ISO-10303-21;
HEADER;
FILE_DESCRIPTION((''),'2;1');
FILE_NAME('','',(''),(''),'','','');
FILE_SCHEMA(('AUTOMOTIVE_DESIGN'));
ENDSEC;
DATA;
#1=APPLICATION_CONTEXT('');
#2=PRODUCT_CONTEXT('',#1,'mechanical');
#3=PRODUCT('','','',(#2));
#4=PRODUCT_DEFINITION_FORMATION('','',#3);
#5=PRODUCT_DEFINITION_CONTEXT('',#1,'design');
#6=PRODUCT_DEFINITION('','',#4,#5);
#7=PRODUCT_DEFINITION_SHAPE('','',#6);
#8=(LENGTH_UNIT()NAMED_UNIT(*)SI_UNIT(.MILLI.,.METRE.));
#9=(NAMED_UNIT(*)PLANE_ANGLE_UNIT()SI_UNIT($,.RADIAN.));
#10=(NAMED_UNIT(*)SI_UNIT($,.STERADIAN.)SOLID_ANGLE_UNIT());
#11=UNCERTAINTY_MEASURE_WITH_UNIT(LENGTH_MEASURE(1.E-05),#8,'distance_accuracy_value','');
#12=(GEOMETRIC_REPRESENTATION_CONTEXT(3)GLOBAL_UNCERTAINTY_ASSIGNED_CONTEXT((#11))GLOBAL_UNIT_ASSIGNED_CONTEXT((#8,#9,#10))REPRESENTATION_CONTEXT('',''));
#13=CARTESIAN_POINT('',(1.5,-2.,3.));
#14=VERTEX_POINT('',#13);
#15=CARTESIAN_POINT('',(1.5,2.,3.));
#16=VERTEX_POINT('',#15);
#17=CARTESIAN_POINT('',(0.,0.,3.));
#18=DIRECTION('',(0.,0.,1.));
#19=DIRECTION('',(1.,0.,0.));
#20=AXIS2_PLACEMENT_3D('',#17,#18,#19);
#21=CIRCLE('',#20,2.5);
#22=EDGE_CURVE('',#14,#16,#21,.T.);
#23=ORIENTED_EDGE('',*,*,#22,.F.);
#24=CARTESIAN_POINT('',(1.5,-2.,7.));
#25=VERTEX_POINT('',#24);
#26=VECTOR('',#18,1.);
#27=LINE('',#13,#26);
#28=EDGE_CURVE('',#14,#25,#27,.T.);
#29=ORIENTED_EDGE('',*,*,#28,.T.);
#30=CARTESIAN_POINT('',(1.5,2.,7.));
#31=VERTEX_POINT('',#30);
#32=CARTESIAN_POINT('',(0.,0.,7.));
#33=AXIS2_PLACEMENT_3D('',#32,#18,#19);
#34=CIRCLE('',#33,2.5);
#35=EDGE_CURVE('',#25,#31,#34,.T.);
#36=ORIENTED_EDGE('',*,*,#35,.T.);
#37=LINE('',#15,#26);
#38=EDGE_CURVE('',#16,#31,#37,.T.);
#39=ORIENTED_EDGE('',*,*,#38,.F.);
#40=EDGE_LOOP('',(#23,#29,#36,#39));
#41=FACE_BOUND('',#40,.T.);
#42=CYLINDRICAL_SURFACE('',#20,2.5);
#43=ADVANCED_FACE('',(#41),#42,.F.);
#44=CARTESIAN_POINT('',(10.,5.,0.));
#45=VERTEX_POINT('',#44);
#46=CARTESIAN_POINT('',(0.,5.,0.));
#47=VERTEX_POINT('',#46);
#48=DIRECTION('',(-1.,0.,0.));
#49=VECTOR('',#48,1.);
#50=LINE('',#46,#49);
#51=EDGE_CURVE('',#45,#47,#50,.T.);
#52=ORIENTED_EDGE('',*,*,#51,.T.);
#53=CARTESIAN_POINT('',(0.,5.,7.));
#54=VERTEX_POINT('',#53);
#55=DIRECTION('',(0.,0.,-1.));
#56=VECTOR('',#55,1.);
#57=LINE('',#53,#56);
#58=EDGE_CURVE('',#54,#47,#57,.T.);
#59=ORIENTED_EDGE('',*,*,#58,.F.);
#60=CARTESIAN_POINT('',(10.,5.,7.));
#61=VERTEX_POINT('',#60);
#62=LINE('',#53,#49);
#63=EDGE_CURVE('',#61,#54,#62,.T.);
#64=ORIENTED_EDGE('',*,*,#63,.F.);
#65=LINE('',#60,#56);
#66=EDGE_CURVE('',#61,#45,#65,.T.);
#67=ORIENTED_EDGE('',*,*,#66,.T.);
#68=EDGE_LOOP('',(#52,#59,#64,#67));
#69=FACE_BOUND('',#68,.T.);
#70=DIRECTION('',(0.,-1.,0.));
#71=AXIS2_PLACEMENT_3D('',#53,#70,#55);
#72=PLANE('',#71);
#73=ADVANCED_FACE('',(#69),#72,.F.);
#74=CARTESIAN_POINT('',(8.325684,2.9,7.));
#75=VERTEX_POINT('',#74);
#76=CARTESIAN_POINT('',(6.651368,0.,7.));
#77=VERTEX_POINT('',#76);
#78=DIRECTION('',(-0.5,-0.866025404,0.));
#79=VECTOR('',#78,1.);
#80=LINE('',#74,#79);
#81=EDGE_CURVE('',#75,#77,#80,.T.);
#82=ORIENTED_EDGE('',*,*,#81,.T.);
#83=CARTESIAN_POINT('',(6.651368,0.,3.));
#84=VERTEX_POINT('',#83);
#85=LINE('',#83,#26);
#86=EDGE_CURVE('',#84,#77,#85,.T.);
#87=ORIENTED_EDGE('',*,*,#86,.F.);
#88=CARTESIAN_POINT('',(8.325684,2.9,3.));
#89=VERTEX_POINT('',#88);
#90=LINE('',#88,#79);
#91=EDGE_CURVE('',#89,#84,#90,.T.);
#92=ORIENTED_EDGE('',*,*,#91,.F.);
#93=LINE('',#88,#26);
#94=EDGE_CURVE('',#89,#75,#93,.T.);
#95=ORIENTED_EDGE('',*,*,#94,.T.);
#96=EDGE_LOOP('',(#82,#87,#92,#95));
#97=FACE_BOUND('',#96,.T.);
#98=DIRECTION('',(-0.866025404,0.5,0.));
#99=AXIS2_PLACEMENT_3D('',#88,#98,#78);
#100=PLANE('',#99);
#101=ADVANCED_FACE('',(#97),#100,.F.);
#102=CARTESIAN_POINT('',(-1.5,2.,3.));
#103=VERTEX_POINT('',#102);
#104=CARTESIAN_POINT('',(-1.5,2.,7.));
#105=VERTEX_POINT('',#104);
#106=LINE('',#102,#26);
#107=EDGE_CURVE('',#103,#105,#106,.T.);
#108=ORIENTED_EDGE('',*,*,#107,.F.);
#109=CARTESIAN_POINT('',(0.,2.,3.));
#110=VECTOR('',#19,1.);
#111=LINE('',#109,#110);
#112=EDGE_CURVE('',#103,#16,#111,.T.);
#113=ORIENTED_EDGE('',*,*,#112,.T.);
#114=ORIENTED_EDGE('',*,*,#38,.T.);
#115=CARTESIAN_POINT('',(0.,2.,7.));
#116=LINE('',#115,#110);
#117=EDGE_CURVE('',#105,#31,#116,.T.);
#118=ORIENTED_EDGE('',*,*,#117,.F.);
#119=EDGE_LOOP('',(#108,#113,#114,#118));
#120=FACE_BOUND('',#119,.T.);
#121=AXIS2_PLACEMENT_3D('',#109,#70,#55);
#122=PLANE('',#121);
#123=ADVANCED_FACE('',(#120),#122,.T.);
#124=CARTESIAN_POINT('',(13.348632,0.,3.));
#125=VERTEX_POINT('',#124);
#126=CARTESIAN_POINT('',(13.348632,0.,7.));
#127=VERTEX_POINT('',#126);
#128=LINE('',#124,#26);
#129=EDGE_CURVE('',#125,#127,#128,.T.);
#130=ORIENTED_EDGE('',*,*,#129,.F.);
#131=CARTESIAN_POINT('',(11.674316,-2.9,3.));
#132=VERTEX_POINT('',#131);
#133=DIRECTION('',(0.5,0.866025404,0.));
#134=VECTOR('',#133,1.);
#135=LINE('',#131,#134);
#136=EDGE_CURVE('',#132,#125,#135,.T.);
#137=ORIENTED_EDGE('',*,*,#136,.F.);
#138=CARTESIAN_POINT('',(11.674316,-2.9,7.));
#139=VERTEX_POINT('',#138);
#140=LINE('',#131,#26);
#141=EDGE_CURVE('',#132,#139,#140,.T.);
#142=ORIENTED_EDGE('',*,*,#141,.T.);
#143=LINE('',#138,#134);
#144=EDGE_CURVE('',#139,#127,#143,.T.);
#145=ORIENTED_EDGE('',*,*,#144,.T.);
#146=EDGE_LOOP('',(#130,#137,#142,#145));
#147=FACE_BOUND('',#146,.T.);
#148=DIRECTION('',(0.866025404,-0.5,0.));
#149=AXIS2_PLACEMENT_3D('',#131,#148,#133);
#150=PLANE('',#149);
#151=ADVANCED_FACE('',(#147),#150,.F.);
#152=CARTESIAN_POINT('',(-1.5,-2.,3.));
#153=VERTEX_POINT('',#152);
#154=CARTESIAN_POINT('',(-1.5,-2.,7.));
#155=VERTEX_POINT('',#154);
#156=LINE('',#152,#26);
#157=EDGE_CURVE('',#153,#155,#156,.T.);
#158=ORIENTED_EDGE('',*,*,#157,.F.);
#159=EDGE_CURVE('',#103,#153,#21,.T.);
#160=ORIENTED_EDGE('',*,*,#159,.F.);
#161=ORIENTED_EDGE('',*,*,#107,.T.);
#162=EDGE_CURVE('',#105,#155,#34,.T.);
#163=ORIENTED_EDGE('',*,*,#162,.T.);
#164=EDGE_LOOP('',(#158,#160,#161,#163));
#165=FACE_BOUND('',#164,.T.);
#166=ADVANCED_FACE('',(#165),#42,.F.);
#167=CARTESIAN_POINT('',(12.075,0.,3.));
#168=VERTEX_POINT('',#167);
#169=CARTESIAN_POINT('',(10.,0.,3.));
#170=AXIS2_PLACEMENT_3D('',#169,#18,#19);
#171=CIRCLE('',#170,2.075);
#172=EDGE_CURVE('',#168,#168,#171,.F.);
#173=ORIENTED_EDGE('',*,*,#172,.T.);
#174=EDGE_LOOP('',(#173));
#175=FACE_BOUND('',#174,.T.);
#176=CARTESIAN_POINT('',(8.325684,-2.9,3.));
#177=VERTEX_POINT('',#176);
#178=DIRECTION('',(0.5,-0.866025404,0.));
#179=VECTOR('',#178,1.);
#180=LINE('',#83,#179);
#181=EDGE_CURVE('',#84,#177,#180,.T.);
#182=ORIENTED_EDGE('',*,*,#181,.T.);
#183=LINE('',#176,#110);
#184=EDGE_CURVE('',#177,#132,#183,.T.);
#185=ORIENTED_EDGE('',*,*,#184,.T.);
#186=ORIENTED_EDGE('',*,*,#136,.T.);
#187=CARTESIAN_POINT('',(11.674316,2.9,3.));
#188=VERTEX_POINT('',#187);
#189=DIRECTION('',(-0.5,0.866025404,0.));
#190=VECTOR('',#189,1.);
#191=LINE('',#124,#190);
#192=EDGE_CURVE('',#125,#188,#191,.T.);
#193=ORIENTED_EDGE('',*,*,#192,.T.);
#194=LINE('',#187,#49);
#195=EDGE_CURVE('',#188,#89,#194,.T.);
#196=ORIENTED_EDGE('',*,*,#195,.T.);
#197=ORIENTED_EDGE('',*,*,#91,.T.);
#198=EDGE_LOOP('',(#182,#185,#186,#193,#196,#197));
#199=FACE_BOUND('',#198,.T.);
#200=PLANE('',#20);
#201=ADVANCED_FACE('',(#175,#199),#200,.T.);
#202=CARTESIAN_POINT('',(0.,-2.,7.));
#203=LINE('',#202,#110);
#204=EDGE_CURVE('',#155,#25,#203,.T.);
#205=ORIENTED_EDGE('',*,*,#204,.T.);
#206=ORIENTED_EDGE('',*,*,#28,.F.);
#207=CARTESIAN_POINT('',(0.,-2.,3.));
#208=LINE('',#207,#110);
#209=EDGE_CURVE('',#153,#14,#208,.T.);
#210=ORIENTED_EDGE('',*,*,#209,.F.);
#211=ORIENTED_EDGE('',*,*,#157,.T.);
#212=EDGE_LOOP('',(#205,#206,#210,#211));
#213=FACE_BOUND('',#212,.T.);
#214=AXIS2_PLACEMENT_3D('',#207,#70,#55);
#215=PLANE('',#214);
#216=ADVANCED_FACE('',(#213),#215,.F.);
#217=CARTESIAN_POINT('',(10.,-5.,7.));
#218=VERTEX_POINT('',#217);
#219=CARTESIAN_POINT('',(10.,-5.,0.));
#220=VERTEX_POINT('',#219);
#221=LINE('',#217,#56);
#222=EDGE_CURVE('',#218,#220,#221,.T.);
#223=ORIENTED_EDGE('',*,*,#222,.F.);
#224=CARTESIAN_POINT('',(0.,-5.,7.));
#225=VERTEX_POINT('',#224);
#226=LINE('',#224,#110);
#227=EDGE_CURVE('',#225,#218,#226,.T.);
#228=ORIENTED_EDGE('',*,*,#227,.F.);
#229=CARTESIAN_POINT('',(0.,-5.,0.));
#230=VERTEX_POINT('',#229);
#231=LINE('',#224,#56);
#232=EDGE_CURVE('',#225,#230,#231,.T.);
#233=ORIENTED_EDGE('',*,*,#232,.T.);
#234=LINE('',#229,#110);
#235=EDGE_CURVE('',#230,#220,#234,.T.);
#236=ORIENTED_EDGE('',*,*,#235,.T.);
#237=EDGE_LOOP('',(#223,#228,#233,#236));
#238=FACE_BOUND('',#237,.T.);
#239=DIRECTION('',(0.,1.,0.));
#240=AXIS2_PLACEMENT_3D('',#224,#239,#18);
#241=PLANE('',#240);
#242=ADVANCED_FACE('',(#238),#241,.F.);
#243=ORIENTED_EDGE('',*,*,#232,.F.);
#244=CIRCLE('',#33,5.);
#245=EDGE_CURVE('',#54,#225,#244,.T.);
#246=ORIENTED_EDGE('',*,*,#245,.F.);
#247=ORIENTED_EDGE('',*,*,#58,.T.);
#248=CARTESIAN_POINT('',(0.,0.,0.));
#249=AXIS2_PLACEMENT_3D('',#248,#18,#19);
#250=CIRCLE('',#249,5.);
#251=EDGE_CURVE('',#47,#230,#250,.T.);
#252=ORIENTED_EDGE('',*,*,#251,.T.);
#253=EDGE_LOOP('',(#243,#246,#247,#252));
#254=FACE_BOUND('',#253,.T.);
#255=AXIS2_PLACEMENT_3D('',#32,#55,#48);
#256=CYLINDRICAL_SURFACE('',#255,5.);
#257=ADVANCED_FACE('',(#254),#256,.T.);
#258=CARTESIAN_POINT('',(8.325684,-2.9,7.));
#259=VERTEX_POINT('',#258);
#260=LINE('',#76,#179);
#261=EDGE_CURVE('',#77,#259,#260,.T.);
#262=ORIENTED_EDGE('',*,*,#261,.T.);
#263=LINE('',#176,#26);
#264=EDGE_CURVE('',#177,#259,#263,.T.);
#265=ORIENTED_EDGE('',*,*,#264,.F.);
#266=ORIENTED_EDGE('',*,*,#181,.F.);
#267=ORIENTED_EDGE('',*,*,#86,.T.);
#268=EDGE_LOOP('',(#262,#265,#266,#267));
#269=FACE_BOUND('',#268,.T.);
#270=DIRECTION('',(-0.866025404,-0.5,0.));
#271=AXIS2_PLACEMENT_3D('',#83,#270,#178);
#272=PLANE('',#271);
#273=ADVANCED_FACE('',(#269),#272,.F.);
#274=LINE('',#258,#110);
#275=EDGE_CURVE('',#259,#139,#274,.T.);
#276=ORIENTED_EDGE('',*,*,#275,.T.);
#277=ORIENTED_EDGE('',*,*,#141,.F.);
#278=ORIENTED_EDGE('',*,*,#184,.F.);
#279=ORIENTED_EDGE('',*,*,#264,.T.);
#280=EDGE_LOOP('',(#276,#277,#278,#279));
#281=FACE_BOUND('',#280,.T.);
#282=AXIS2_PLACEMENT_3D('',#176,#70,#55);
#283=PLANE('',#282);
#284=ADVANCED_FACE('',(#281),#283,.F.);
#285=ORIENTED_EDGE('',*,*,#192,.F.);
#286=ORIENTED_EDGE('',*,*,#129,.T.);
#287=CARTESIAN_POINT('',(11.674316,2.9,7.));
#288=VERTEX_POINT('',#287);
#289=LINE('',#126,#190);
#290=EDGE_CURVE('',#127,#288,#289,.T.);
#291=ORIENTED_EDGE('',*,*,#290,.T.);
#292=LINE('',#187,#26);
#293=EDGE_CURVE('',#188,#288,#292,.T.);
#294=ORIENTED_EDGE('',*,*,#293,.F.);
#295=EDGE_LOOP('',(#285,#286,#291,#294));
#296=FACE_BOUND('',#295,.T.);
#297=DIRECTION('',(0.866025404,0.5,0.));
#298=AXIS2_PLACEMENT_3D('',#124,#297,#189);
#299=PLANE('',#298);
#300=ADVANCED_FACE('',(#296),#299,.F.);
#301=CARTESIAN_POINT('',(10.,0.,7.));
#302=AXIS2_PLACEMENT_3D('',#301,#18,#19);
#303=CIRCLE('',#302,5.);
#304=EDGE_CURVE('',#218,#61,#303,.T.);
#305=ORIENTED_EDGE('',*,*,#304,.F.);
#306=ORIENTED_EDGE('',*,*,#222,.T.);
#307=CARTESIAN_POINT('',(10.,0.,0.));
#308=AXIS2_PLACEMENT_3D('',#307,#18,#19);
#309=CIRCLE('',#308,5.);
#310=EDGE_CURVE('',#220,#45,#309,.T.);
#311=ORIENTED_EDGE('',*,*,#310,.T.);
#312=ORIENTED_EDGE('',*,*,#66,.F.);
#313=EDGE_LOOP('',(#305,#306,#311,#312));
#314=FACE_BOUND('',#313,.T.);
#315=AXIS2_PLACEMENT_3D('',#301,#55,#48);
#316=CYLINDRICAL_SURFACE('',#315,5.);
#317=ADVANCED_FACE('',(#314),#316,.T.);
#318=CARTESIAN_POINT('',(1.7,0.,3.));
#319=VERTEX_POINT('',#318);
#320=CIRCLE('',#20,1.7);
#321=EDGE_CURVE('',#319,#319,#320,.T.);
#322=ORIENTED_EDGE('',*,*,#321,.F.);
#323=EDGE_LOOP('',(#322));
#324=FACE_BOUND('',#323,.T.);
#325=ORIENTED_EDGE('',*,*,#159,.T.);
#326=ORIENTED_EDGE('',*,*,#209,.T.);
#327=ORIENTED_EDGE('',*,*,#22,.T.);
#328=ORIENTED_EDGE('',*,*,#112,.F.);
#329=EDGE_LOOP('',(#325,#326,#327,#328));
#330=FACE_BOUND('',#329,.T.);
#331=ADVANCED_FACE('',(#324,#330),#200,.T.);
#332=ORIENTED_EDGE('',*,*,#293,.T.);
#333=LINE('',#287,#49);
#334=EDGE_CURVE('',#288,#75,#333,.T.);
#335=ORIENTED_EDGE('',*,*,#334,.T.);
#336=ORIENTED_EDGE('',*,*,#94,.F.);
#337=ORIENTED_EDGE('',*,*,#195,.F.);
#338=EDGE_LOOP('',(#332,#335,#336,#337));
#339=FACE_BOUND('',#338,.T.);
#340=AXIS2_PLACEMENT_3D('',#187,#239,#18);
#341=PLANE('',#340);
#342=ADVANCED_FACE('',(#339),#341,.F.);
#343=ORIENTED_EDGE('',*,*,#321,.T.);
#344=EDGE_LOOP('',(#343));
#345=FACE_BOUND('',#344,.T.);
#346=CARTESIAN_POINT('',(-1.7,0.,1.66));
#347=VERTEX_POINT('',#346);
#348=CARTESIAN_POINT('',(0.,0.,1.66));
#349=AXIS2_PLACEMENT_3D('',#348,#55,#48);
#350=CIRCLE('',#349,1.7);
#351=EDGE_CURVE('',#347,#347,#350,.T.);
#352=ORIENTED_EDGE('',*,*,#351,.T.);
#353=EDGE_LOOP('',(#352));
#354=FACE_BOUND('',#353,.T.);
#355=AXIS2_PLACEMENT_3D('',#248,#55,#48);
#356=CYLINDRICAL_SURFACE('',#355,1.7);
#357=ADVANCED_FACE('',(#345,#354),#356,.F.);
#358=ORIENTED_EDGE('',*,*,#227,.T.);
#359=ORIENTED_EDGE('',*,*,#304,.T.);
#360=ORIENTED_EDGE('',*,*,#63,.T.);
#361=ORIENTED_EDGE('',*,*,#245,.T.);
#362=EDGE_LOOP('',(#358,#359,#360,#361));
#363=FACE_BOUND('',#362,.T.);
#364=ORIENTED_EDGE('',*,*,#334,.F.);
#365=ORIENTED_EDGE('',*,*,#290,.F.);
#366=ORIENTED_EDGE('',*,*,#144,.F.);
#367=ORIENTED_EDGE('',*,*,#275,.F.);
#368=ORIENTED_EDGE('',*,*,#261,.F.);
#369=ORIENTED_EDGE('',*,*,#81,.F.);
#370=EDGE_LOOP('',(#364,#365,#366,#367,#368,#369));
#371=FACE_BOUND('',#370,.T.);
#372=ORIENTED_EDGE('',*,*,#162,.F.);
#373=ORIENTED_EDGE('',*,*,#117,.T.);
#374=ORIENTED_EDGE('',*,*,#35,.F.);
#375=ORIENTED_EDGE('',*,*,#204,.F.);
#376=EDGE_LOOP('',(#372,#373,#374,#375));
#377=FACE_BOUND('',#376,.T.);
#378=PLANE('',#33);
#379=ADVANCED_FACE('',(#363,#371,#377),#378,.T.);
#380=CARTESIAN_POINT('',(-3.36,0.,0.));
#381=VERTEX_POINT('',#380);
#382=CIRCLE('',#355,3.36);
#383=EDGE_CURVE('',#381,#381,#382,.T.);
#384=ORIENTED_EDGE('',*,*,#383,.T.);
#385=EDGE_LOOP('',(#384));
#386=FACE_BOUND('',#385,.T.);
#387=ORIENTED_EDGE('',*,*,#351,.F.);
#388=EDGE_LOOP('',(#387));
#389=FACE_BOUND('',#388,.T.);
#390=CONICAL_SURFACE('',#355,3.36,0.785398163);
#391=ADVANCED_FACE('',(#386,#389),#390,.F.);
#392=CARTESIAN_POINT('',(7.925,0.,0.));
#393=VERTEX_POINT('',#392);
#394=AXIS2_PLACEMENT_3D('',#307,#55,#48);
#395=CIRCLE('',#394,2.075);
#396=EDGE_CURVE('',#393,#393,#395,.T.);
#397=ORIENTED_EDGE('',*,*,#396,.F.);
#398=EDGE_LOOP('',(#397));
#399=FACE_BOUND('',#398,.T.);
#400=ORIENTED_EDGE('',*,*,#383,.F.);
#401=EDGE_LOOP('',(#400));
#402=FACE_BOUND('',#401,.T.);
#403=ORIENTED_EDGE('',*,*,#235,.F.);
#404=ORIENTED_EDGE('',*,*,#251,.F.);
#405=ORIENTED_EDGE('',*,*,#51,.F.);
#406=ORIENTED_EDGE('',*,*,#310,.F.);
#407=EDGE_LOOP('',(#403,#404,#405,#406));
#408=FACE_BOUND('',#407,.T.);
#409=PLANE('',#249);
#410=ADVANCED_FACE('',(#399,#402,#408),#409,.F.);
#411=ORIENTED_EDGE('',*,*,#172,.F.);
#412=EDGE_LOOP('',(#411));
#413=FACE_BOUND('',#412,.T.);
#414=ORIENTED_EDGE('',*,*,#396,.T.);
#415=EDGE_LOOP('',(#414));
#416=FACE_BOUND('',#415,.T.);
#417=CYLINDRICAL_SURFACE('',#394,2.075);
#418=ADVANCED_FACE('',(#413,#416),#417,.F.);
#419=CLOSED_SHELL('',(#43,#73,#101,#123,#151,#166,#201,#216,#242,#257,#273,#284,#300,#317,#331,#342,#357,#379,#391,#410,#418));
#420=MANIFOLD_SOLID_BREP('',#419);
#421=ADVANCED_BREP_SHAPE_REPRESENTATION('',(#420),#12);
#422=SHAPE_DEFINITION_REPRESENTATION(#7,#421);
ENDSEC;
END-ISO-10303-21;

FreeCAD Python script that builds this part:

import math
import FreeCAD as App
import Part
import Sketcher

V = App.Vector
Q = App.Units.Quantity

doc = App.newDocument("Part")
body = doc.addObject("PartDesign::Body", "Body")

# Sketch on XY plane
sketch1 = doc.addObject("Sketcher::SketchObject", "Sketch")
body.addObject(sketch1)
sketch1.AttachmentSupport = (doc.XY_Plane, [""])
sketch1.MapMode = "FlatFace"
sketch1.addGeometry([
    Part.LineSegment(V(10, 5, 0), V(0, 5, 0)),
    Part.ArcOfCircle(Part.Circle(V(0, 0, 0), V(0, 0, 1), 5), math.radians(90), math.radians(270)),
    Part.LineSegment(V(0, -5, 0), V(10, -5, 0)),
    Part.ArcOfCircle(Part.Circle(V(10, 0, 0), V(0, 0, 1), 5), math.radians(-90), math.radians(90)),
], False)
sketch1.addConstraint([
    Sketcher.Constraint("Tangent", 0, 2, 1, 1),
    Sketcher.Constraint("Tangent", 1, 2, 2, 1),
    Sketcher.Constraint("Tangent", 2, 2, 3, 1),
    Sketcher.Constraint("Tangent", 3, 2, 0, 1),
    Sketcher.Constraint("Horizontal", 0),
    Sketcher.Constraint("Horizontal", 2),
    Sketcher.Constraint("Coincident", 1, 3, -1, 1),
    Sketcher.Constraint("Radius", 1, 5.0),
    Sketcher.Constraint("DistanceX", 0, 2, 0, 1, 10.0),
])
pad1 = doc.addObject("PartDesign::Pad", "Pad")
body.addObject(pad1)
pad1.Profile = sketch1
pad1.Length = 7

# Sketch on XY plane
sketch2 = doc.addObject("Sketcher::SketchObject", "Sketch001")
body.addObject(sketch2)
sketch2.AttachmentSupport = (doc.XY_Plane, [""])
sketch2.MapMode = "FlatFace"
sketch2.AttachmentOffset = App.Placement(V(0, 0, 7), App.Rotation())
sketch2.addGeometry([
    Part.LineSegment(V(1.5, 2, 0), V(-1.5, 2, 0)),  # 0
    Part.ArcOfCircle(Part.Circle(V(0, 0, 0), V(0, 0, 1), 2.5), math.radians(126.869898), math.radians(233.130102)),  # 1
    Part.LineSegment(V(-1.5, -2, 0), V(1.5, -2, 0)),  # 2
    Part.ArcOfCircle(Part.Circle(V(0, 0, 0), V(0, 0, 1), 2.5), math.radians(-53.130102), math.radians(0)),  # 3
    Part.ArcOfCircle(Part.Circle(V(0, 0, 0), V(0, 0, 1), 2.5), math.radians(0), math.radians(53.130102)),  # 4
], False)
sketch2.addConstraint([
    Sketcher.Constraint("Coincident", 0, 2, 1, 1),
    Sketcher.Constraint("Coincident", 1, 2, 2, 1),
    Sketcher.Constraint("Coincident", 2, 2, 3, 1),
    Sketcher.Constraint("Tangent", 3, 2, 4, 1),
    Sketcher.Constraint("Coincident", 4, 2, 0, 1),
    Sketcher.Constraint("Horizontal", 0),
    Sketcher.Constraint("Horizontal", 2),
    Sketcher.Constraint("Coincident", 1, 3, -1, 1),
    Sketcher.Constraint("Coincident", 3, 3, -1, 1),
    Sketcher.Constraint("Equal", 1, 3),
    Sketcher.Constraint("Equal", 3, 4),
    Sketcher.Constraint("PointOnObject", 3, 2, -1),
    Sketcher.Constraint("Vertical", 0, 2, 1, 2),
    Sketcher.Constraint("Radius", 1, 2.5),
    Sketcher.Constraint("DistanceX", 0, 2, 0, 1, 3.0),
])
pocket1 = doc.addObject("PartDesign::Pocket", "Pocket")
body.addObject(pocket1)
pocket1.Profile = sketch2
pocket1.Length = 4

# Sketch on XY plane
sketch3 = doc.addObject("Sketcher::SketchObject", "Sketch002")
body.addObject(sketch3)
sketch3.AttachmentSupport = (doc.XY_Plane, [""])
sketch3.MapMode = "FlatFace"
sketch3.addGeometry(Part.Circle(V(0, 0, 0), V(0, 0, 1), 1.7), False)
sketch3.addConstraint([
    Sketcher.Constraint("Coincident", 0, 3, -1, 1),
    Sketcher.Constraint("Diameter", 0, 3.4),
])
doc.recompute()
hole = doc.addObject("PartDesign::Hole", "Hole")
body.addObject(hole)
hole.Profile = sketch3
hole.ThreadType = "None"
hole.Diameter = 3.4
hole.DepthType = "Dimension"
hole.Depth = 7.5
hole.DrillPoint = "Angled"
hole.DrillPointAngle = 118
hole.HoleCutType = "Countersink"
hole.HoleCutDiameter = 6.72
hole.HoleCutCountersinkAngle = 90
hole.Reversed = True

# Sketch on XY plane
sketch4 = doc.addObject("Sketcher::SketchObject", "Sketch003")
body.addObject(sketch4)
sketch4.AttachmentSupport = (doc.XY_Plane, [""])
sketch4.MapMode = "FlatFace"
sketch4.addGeometry(Part.Circle(V(10, 0, 0), V(0, 0, 1), 2.075), False)
sketch4.addConstraint([
    Sketcher.Constraint("PointOnObject", 0, 3, -1),
    Sketcher.Constraint("Diameter", 0, 4.15),
    Sketcher.Constraint("DistanceX", -1, 1, 0, 3, 10.0),
])
doc.recompute()
hole2 = doc.addObject("PartDesign::Hole", "Hole001")
body.addObject(hole2)
hole2.Profile = sketch4
hole2.ThreadType = "None"
hole2.Diameter = 4.15
hole2.DepthType = "ThroughAll"
hole2.Reversed = True

# Sketch on XY plane
sketch5 = doc.addObject("Sketcher::SketchObject", "Sketch004")
body.addObject(sketch5)
sketch5.AttachmentSupport = (doc.XY_Plane, [""])
sketch5.MapMode = "FlatFace"
sketch5.AttachmentOffset = App.Placement(V(0, 0, 7), App.Rotation())
sketch5.addGeometry([
    Part.LineSegment(V(8.325684, -2.9, 0), V(11.674316, -2.9, 0)),  # 0
    Part.LineSegment(V(11.674316, -2.9, 0), V(13.348632, 0, 0)),  # 1
    Part.LineSegment(V(13.348632, 0, 0), V(11.674316, 2.9, 0)),  # 2
    Part.LineSegment(V(11.674316, 2.9, 0), V(8.325684, 2.9, 0)),  # 3
    Part.LineSegment(V(8.325684, 2.9, 0), V(6.651368, 0, 0)),  # 4
    Part.LineSegment(V(6.651368, 0, 0), V(8.325684, -2.9, 0)),  # 5
], False)
sketch5.addConstraint([
    Sketcher.Constraint("Coincident", 0, 2, 1, 1),
    Sketcher.Constraint("Coincident", 1, 2, 2, 1),
    Sketcher.Constraint("Coincident", 2, 2, 3, 1),
    Sketcher.Constraint("Coincident", 3, 2, 4, 1),
    Sketcher.Constraint("Coincident", 4, 2, 5, 1),
    Sketcher.Constraint("Coincident", 5, 2, 0, 1),
    Sketcher.Constraint("Horizontal", 0),
    Sketcher.Constraint("Horizontal", 3),
    Sketcher.Constraint("Symmetric", 0, 2, 2, 2, -1),
    Sketcher.Constraint("PointOnObject", 1, 2, -1),
    Sketcher.Constraint("PointOnObject", 4, 2, -1),
    Sketcher.Constraint("Parallel", 1, 4),
    Sketcher.Constraint("Parallel", 2, 5),
    Sketcher.Constraint("Angle", 1, Q("60 deg")),
    Sketcher.Constraint("DistanceY", 0, 2, -1, 1, 2.9),
    Sketcher.Constraint("DistanceX", 0, 1, 0, 2, 3.348632),
    Sketcher.Constraint("DistanceX", -1, 1, 1, 2, 13.348632),
])
pocket2 = doc.addObject("PartDesign::Pocket", "Pocket001")
body.addObject(pocket2)
pocket2.Profile = sketch5
pocket2.Length = 4

doc.recompute()
